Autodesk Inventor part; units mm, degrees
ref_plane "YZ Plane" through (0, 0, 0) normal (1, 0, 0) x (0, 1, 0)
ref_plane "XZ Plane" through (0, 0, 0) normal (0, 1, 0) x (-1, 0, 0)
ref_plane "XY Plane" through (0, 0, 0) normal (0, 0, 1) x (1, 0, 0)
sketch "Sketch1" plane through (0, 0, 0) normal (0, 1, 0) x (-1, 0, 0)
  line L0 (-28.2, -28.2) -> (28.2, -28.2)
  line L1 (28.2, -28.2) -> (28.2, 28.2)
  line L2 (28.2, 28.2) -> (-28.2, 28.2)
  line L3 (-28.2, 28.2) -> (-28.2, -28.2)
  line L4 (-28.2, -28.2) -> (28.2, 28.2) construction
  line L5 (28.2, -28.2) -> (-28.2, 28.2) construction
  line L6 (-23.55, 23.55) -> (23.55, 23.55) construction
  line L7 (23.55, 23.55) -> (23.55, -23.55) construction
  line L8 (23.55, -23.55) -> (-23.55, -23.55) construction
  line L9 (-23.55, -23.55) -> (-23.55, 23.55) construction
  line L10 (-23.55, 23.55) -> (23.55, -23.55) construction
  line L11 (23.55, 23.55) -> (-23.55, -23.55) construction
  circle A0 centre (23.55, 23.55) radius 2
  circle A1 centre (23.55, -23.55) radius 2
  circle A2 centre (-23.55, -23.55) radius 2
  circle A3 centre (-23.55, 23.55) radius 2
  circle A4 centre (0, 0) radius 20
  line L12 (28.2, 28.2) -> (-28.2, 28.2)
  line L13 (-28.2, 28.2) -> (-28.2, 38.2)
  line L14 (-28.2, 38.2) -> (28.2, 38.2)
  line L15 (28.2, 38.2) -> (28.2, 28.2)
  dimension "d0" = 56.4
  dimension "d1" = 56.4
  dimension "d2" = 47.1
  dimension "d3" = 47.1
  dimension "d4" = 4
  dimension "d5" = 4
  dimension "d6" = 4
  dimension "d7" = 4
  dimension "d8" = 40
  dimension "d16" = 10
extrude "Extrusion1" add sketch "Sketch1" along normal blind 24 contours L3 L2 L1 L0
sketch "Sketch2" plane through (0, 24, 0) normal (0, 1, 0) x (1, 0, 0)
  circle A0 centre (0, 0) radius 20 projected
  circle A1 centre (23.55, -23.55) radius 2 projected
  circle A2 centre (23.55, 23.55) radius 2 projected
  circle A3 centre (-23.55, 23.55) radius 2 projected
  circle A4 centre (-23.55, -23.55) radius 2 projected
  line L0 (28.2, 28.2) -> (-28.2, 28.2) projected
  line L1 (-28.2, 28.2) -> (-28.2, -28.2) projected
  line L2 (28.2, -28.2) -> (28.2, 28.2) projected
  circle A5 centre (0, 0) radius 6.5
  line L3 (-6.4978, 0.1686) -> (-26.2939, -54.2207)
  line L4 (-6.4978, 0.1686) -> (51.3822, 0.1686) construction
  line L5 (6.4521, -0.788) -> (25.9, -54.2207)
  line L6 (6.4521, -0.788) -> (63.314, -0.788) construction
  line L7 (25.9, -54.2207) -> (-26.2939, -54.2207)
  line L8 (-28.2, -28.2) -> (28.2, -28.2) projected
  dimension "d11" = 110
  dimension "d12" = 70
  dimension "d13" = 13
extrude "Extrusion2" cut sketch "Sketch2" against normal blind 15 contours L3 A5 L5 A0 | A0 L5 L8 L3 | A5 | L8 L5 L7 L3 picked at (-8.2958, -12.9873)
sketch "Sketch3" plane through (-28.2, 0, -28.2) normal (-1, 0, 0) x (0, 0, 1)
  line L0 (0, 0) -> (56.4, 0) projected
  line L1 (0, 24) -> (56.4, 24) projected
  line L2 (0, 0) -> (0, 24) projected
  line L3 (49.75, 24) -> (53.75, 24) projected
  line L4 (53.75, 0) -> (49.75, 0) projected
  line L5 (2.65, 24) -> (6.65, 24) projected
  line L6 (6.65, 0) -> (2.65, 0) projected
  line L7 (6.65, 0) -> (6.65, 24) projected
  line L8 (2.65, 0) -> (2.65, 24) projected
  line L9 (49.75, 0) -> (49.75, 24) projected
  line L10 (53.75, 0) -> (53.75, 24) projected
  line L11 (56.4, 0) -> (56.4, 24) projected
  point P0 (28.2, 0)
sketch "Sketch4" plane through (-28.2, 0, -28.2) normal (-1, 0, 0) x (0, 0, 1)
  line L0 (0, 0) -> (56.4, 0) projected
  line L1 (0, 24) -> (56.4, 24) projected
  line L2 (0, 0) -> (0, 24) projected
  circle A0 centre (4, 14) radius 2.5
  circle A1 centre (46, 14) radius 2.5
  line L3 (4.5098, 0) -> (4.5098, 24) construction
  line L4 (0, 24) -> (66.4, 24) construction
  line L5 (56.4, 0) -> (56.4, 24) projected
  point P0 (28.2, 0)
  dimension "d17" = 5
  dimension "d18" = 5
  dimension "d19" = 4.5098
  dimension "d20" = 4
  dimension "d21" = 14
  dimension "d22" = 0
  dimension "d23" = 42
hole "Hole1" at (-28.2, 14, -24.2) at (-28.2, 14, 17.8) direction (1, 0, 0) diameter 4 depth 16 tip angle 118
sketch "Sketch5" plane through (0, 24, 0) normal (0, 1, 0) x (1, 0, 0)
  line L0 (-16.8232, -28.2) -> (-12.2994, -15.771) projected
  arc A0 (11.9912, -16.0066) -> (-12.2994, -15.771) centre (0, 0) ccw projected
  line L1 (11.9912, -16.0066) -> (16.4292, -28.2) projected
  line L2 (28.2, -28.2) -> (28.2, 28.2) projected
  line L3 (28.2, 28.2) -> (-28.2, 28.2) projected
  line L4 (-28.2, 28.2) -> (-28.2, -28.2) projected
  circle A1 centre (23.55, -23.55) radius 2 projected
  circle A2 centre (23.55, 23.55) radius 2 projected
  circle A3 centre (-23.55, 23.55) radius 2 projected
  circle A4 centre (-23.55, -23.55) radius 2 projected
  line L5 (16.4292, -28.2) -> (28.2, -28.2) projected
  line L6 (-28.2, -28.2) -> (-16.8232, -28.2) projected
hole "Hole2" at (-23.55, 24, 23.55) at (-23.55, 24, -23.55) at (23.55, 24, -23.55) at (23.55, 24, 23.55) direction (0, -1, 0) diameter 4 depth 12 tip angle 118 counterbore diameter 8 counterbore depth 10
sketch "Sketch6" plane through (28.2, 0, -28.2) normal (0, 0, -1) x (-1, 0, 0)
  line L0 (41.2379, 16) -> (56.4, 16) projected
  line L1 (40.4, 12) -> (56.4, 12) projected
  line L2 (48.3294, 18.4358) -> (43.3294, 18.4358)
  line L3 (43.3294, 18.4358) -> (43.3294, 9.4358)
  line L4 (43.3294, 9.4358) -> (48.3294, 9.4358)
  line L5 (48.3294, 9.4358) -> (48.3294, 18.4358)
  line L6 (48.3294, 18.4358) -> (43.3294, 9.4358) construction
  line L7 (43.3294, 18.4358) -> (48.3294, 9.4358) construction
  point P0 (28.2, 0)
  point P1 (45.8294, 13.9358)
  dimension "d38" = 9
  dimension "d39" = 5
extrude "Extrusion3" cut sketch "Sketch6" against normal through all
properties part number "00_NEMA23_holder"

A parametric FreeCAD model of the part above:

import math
import FreeCAD as App
import Part
import Sketcher

V = App.Vector


def add_polygon(sketch, points):
    """Adds a closed chain of lines whose ends are joined by coincident constraints."""
    first, n = sketch.GeometryCount, len(points)
    for a, b in zip(points, points[1:] + points[:1]):
        sketch.addGeometry(Part.LineSegment(App.Vector(*a, 0), App.Vector(*b, 0)), False)
    for i in range(n):
        sketch.addConstraint(Sketcher.Constraint("Coincident", first + i, 2, first + (i + 1) % n, 1))

doc = App.newDocument("Part")
body = doc.addObject("PartDesign::Body", "Body")

sketch1 = body.newObject("Sketcher::SketchObject", "Sketch")
sketch1.AttachmentSupport = (doc.getObject("XZ_Plane"), [""])
sketch1.MapMode = "FlatFace"
add_polygon(sketch1, [(28.2, 28.2), (28.2, -28.2), (-28.2, -28.2), (-28.2, 28.2)])
sketch1.addGeometry(Part.Circle(V(23.6, -23.6, 0), V(0, 0, 1), 2), False)
sketch1.addGeometry(Part.Circle(V(-23.6, -23.6, 0), V(0, 0, 1), 2), False)
sketch1.addGeometry(Part.Circle(V(0, 0, 0), V(0, 0, 1), 20), False)
sketch1.addGeometry(Part.Circle(V(23.6, 23.6, 0), V(0, 0, 1), 2), False)
sketch1.addGeometry(Part.Circle(V(-23.6, 23.6, 0), V(0, 0, 1), 2), False)
sketch1.addConstraint([
    Sketcher.Constraint("Vertical", 0),
    Sketcher.Constraint("Horizontal", 1),
    Sketcher.Constraint("Vertical", 2),
    Sketcher.Constraint("Horizontal", 3),
    Sketcher.Constraint("Coincident", 6, 3, -1, 1),
    Sketcher.Constraint("Equal", 4, 5),
    Sketcher.Constraint("Equal", 5, 7),
    Sketcher.Constraint("Equal", 7, 8),
    Sketcher.Constraint("Symmetric", 5, 3, 7, 3, -1, 1),
    Sketcher.Constraint("Symmetric", 4, 3, 8, 3, -1, 1),
    Sketcher.Constraint("Symmetric", 0, 2, 2, 2, -1, 1),
    Sketcher.Constraint("Symmetric", 4, 3, 5, 3, -2),
    Sketcher.Constraint("Equal", 3, 0),
    Sketcher.Constraint("Diameter", 4, 4.0),
    Sketcher.Constraint("Diameter", 6, 40.0),
    Sketcher.Constraint("DistanceX", 1, 2, 1, 1, 56.4),
    Sketcher.Constraint("DistanceX", 5, 3, 4, 3, 47.1),
    Sketcher.Constraint("DistanceY", 4, 3, 7, 3, 47.1),
])
pad1 = body.newObject("PartDesign::Pad", "Pad")
pad1.Profile = sketch1
pad1.Length = 24
pad1.Reversed = True

sketch2 = body.newObject("Sketcher::SketchObject", "Sketch001")
sketch2.AttachmentSupport = (doc.getObject("XZ_Plane"), [""])
sketch2.MapMode = "FlatFace"
sketch2.AttachmentOffset = App.Placement(V(0, 0, -24), App.Rotation())
sketch2.addGeometry([
    Part.LineSegment(V(-6.4978, -0.1686, 0), V(-26.2939, 54.2207, 0)),
    Part.LineSegment(V(-26.2939, 54.2207, 0), V(25.9, 54.2207, 0)),
    Part.LineSegment(V(25.9, 54.2207, 0), V(6.4521, 0.788, 0)),
    Part.ArcOfCircle(Part.Circle(V(0, 0, 0), V(0, 0, 1), 6.5), math.radians(-178.513666), math.radians(6.963094)),
], False)
sketch2.addConstraint([
    Sketcher.Constraint("Coincident", 0, 2, 1, 1),
    Sketcher.Constraint("Coincident", 1, 2, 2, 1),
    Sketcher.Constraint("Coincident", 2, 2, 3, 2),
    Sketcher.Constraint("Coincident", 3, 1, 0, 1),
    Sketcher.Constraint("Horizontal", 1),
    Sketcher.Constraint("Coincident", 3, 3, -1, 1),
    Sketcher.Constraint("Radius", 3, 6.5),
    Sketcher.Constraint("DistanceX", -1, 1, 1, 2, 25.9),
    Sketcher.Constraint("Distance", 0, 57.88),
    Sketcher.Constraint("DistanceX", 1, 1, 1, 2, 52.194),
    Sketcher.Constraint("DistanceX", 3, 1, 2, 2, 12.95),
    Sketcher.Constraint("Distance", 2, 56.862),
])
pocket1 = body.newObject("PartDesign::Pocket", "Pocket")
pocket1.Profile = sketch2
pocket1.Length = 15
pocket1.Reversed = True

sketch3 = body.newObject("Sketcher::SketchObject", "Sketch002")
sketch3.AttachmentSupport = (doc.getObject("YZ_Plane"), [""])
sketch3.MapMode = "FlatFace"
sketch3.AttachmentOffset = App.Placement(V(0, 0, -28.2), App.Rotation())
sketch3.addGeometry([
    Part.Circle(V(14, -24.2, 0), V(0, 0, 1), 2),
    Part.Circle(V(14, 17.8, 0), V(0, 0, 1), 2),
], False)
sketch3.addConstraint([
    Sketcher.Constraint("Equal", 0, 1),
    Sketcher.Constraint("Vertical", 0, 3, 1, 3),
    Sketcher.Constraint("Diameter", 0, 4.0),
    Sketcher.Constraint("DistanceX", -1, 1, 0, 3, 14.0),
    Sketcher.Constraint("DistanceY", 0, 3, 1, 3, 42.0),
    Sketcher.Constraint("DistanceY", 0, 3, -1, 1, 24.2),
])
doc.recompute()
hole = body.newObject("PartDesign::Hole", "Hole")
hole.Profile = sketch3
hole.ThreadType = "None"
hole.Diameter = 4
hole.DepthType = "Dimension"
hole.Depth = 16
hole.DrillPoint = "Angled"
hole.DrillPointAngle = 118
hole.Reversed = True

sketch4 = body.newObject("Sketcher::SketchObject", "Sketch003")
sketch4.AttachmentSupport = (doc.getObject("XZ_Plane"), [""])
sketch4.MapMode = "FlatFace"
sketch4.AttachmentOffset = App.Placement(V(0, 0, -24), App.Rotation())
sketch4.addGeometry([
    Part.Circle(V(-23.6, 23.6, 0), V(0, 0, 1), 2),
    Part.Circle(V(-23.6, -23.6, 0), V(0, 0, 1), 2),
    Part.Circle(V(23.6, -23.6, 0), V(0, 0, 1), 2),
    Part.Circle(V(23.6, 23.6, 0), V(0, 0, 1), 2),
], False)
sketch4.addConstraint([
    Sketcher.Constraint("Equal", 0, 1),
    Sketcher.Constraint("Equal", 1, 2),
    Sketcher.Constraint("Equal", 2, 3),
    Sketcher.Constraint("Symmetric", 0, 3, 2, 3, -1, 1),
    Sketcher.Constraint("Symmetric", 1, 3, 3, 3, -1, 1),
    Sketcher.Constraint("Symmetric", 1, 3, 2, 3, -2),
    Sketcher.Constraint("Diameter", 0, 4.0),
    Sketcher.Constraint("DistanceY", 1, 3, 0, 3, 47.1),
    Sketcher.Constraint("DistanceX", 1, 3, 2, 3, 47.1),
])
doc.recompute()
hole2 = body.newObject("PartDesign::Hole", "Hole001")
hole2.Profile = sketch4
hole2.ThreadType = "None"
hole2.Diameter = 4
hole2.DepthType = "Dimension"
hole2.Depth = 12
hole2.DrillPoint = "Angled"
hole2.DrillPointAngle = 118
hole2.HoleCutType = "Counterbore"
hole2.HoleCutDiameter = 8
hole2.HoleCutDepth = 10
hole2.Reversed = True

sketch5 = body.newObject("Sketcher::SketchObject", "Sketch004")
sketch5.AttachmentSupport = (doc.getObject("XY_Plane"), [""])
sketch5.MapMode = "FlatFace"
sketch5.AttachmentOffset = App.Placement(V(0, 0, -28.2), App.Rotation())
add_polygon(sketch5, [(-15, 18), (-15, 9), (-20, 9), (-20, 18)])
sketch5.addConstraint([
    Sketcher.Constraint("Vertical", 0),
    Sketcher.Constraint("Horizontal", 1),
    Sketcher.Constraint("Vertical", 2),
    Sketcher.Constraint("Horizontal", 3),
    Sketcher.Constraint("DistanceX", 1, 2, 1, 1, 5.0),
    Sketcher.Constraint("DistanceY", 0, 2, 0, 1, 9.0),
    Sketcher.Constraint("DistanceX", 0, 2, -1, 1, 15.1294),
    Sketcher.Constraint("DistanceY", -1, 1, 0, 2, 9.4358),
])
pocket2 = body.newObject("PartDesign::Pocket", "Pocket001")
pocket2.Profile = sketch5
pocket2.Type = "ThroughAll"
pocket2.Reversed = True

doc.recompute()
